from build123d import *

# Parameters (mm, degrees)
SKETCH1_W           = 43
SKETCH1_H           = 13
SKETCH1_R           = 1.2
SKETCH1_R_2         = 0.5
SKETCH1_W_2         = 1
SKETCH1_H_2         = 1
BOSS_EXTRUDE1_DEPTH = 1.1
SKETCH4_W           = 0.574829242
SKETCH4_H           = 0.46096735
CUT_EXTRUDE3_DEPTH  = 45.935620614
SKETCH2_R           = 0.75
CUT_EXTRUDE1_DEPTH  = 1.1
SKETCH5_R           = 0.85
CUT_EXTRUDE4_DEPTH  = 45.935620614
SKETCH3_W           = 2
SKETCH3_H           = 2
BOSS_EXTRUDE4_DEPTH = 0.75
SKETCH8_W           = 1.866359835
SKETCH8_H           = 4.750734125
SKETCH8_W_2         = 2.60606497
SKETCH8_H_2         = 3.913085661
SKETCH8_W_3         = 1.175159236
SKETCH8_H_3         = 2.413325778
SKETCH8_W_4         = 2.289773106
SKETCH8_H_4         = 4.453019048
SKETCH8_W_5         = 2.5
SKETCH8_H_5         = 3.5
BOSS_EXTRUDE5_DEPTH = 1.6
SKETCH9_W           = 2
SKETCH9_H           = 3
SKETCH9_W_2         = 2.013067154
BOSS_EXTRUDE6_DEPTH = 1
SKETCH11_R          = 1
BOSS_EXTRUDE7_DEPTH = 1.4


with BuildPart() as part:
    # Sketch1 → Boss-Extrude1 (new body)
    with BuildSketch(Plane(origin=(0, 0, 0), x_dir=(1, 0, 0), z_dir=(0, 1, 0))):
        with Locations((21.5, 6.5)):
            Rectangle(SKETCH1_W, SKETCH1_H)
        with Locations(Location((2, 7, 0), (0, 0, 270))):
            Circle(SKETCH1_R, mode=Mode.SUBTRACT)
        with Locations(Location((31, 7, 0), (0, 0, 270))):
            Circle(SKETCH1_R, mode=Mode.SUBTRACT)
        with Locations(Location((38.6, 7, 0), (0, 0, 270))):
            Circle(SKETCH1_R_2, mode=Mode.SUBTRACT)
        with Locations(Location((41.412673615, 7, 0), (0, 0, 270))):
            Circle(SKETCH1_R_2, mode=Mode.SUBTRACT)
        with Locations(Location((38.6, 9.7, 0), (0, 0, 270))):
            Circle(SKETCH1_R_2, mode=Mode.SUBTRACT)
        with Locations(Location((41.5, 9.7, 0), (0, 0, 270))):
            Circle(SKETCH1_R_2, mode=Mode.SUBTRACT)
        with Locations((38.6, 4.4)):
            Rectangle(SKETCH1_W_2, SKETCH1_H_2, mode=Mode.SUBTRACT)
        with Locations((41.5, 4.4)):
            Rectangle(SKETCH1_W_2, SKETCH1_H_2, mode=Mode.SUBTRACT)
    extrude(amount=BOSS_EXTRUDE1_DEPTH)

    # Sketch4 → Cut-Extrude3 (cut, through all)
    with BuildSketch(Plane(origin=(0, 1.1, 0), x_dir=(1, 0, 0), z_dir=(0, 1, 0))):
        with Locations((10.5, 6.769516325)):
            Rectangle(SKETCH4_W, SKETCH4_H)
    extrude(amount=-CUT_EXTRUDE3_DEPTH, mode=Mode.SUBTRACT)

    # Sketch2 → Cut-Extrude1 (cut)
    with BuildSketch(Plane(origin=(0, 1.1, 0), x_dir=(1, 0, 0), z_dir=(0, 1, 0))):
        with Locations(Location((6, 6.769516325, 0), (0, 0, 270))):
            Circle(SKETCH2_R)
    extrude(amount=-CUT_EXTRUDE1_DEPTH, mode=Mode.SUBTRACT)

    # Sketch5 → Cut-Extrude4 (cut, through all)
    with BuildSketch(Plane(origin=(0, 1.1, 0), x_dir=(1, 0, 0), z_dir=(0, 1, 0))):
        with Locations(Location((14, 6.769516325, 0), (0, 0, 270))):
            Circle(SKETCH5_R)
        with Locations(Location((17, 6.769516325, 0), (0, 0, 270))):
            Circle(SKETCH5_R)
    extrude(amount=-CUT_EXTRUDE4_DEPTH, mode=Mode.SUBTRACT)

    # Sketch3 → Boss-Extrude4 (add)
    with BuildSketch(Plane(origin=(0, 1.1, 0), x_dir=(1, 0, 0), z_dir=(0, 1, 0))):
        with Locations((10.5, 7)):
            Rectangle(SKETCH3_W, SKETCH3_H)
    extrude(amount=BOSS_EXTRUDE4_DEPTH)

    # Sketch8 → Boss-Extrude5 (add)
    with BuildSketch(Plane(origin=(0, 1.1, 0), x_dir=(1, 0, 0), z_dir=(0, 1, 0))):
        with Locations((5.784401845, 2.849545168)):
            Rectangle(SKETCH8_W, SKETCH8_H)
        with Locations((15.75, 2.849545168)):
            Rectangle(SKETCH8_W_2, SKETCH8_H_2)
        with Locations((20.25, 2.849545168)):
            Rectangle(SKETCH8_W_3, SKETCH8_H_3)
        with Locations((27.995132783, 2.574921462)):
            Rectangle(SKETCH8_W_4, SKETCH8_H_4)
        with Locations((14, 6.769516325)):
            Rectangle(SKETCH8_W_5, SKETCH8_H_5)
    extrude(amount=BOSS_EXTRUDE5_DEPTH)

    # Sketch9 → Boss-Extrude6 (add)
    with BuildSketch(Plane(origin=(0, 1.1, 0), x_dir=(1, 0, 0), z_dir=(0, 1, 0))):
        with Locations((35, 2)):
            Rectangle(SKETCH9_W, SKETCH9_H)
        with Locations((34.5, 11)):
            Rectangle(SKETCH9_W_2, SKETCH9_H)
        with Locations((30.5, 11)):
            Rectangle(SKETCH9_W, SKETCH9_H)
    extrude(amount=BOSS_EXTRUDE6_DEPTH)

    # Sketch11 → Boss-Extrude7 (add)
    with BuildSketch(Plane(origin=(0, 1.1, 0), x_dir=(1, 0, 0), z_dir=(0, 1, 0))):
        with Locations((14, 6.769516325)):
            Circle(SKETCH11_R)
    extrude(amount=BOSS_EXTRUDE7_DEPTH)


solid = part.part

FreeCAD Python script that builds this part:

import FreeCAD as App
import Part
import Sketcher
Q = App.Units.Quantity

doc = App.newDocument("Part")
body = doc.addObject("PartDesign::Body", "Body")

sketch1 = doc.addObject("Sketcher::SketchObject", "Sketch")
body.addObject(sketch1)
sketch1.AttachmentSupport = (doc.XZ_Plane, [""])
sketch1.MapMode = "FlatFace"
sketch1.addGeometry([
    Part.LineSegment(App.Vector(0, -13, 0), App.Vector(0, 0, 0)),
    Part.LineSegment(App.Vector(0, 0, 0), App.Vector(43, 0, 0)),
    Part.LineSegment(App.Vector(43, 0, 0), App.Vector(43, -13, 0)),
    Part.LineSegment(App.Vector(43, -13, 0), App.Vector(0, -13, 0)),
    Part.Circle(App.Vector(2, -7, 0), App.Vector(0, 0, 1), 1.2),
    Part.LineSegment(App.Vector(39.1, -3.9, 0), App.Vector(38.1, -3.9, 0)),
    Part.LineSegment(App.Vector(38.1, -3.9, 0), App.Vector(38.1, -4.9, 0)),
    Part.LineSegment(App.Vector(38.1, -4.9, 0), App.Vector(39.1, -4.9, 0)),
    Part.LineSegment(App.Vector(39.1, -4.9, 0), App.Vector(39.1, -3.9, 0)),
    Part.LineSegment(App.Vector(42, -3.9, 0), App.Vector(41, -3.9, 0)),
    Part.LineSegment(App.Vector(41, -3.9, 0), App.Vector(41, -4.9, 0)),
    Part.LineSegment(App.Vector(41, -4.9, 0), App.Vector(42, -4.9, 0)),
    Part.LineSegment(App.Vector(42, -4.9, 0), App.Vector(42, -3.9, 0)),
    Part.Circle(App.Vector(31, -7, 0), App.Vector(0, 0, 1), 1.2),
    Part.Circle(App.Vector(38.6, -7, 0), App.Vector(0, 0, 1), 0.5),
    Part.Circle(App.Vector(41.4, -7, 0), App.Vector(0, 0, 1), 0.5),
    Part.Circle(App.Vector(38.6, -9.7, 0), App.Vector(0, 0, 1), 0.5),
    Part.Circle(App.Vector(41.5, -9.7, 0), App.Vector(0, 0, 1), 0.5),
], False)
sketch1.addConstraint([
    Sketcher.Constraint("Coincident", 0, 2, 1, 1),
    Sketcher.Constraint("Coincident", 1, 2, 2, 1),
    Sketcher.Constraint("Coincident", 2, 2, 3, 1),
    Sketcher.Constraint("Coincident", 3, 2, 0, 1),
    Sketcher.Constraint("Coincident", 5, 2, 6, 1),
    Sketcher.Constraint("Coincident", 6, 2, 7, 1),
    Sketcher.Constraint("Coincident", 7, 2, 8, 1),
    Sketcher.Constraint("Coincident", 8, 2, 5, 1),
    Sketcher.Constraint("Coincident", 9, 2, 10, 1),
    Sketcher.Constraint("Coincident", 10, 2, 11, 1),
    Sketcher.Constraint("Coincident", 11, 2, 12, 1),
    Sketcher.Constraint("Coincident", 12, 2, 9, 1),
    Sketcher.Constraint("Vertical", 0),
    Sketcher.Constraint("Horizontal", 1),
    Sketcher.Constraint("Vertical", 2),
    Sketcher.Constraint("Horizontal", 3),
    Sketcher.Constraint("Horizontal", 5),
    Sketcher.Constraint("Vertical", 6),
    Sketcher.Constraint("Horizontal", 7),
    Sketcher.Constraint("Vertical", 8),
    Sketcher.Constraint("Horizontal", 9),
    Sketcher.Constraint("Vertical", 10),
    Sketcher.Constraint("Horizontal", 11),
    Sketcher.Constraint("Vertical", 12),
    Sketcher.Constraint("Coincident", 0, 2, -1, 1),
    Sketcher.Constraint("Equal", 4, 13),
    Sketcher.Constraint("Equal", 14, 15),
    Sketcher.Constraint("Equal", 15, 16),
    Sketcher.Constraint("Equal", 16, 17),
    Sketcher.Constraint("Horizontal", 4, 3, 13, 3),
    Sketcher.Constraint("Horizontal", 13, 3, 14, 3),
    Sketcher.Constraint("Horizontal", 14, 3, 15, 3),
    Sketcher.Constraint("Horizontal", 16, 3, 17, 3),
    Sketcher.Constraint("Horizontal", 8, 2, 9, 2),
    Sketcher.Constraint("Horizontal", 7, 2, 10, 2),
    Sketcher.Constraint("Vertical", 14, 3, 16, 3),
    Sketcher.Constraint("Equal", 7, 9),
    Sketcher.Constraint("Equal", 11, 6),
    Sketcher.Constraint("Diameter", 14, Q("1 mm")),
    Sketcher.Constraint("Diameter", 4, Q("2.4 mm")),
    Sketcher.Constraint("DistanceX", 1, 1, 1, 2, Q("43 mm")),
    Sketcher.Constraint("DistanceX", 5, 2, 5, 1, Q("1 mm")),
    Sketcher.Constraint("DistanceY", 0, 1, 0, 2, Q("13 mm")),
    Sketcher.Constraint("DistanceX", -1, 1, 4, 3, Q("2 mm")),
    Sketcher.Constraint("DistanceY", 4, 3, -1, 1, Q("7 mm")),
    Sketcher.Constraint("DistanceX", -1, 1, 13, 3, Q("31 mm")),
    Sketcher.Constraint("DistanceX", -1, 1, 9, 2, Q("41 mm")),
    Sketcher.Constraint("DistanceX", -1, 1, 14, 3, Q("38.6 mm")),
    Sketcher.Constraint("DistanceY", 16, 3, -1, 1, Q("9.7 mm")),
    Sketcher.Constraint("DistanceX", -1, 1, 17, 3, Q("41.5 mm")),
    Sketcher.Constraint("DistanceX", -1, 1, 5, 2, Q("38.1 mm")),
    Sketcher.Constraint("DistanceY", 5, 2, -1, 1, Q("3.9 mm")),
    Sketcher.Constraint("DistanceX", -1, 1, 15, 3, Q("41.412674 mm")),
])
pad1 = doc.addObject("PartDesign::Pad", "Pad")
body.addObject(pad1)
pad1.Profile = sketch1
pad1.Length = 1.1
pad1.Reversed = True

sketch2 = doc.addObject("Sketcher::SketchObject", "Sketch001")
body.addObject(sketch2)
sketch2.AttachmentSupport = (doc.XZ_Plane, [""])
sketch2.MapMode = "FlatFace"
sketch2.AttachmentOffset = App.Placement(App.Vector(0, 0, -1.1), App.Rotation())
sketch2.addGeometry([
    Part.LineSegment(App.Vector(10.21, -7, 0), App.Vector(10.21, -6.54, 0)),
    Part.LineSegment(App.Vector(10.21, -6.54, 0), App.Vector(10.79, -6.54, 0)),
    Part.LineSegment(App.Vector(10.79, -6.54, 0), App.Vector(10.79, -7, 0)),
    Part.LineSegment(App.Vector(10.79, -7, 0), App.Vector(10.21, -7, 0)),
], False)
sketch2.addConstraint([
    Sketcher.Constraint("Coincident", 0, 2, 1, 1),
    Sketcher.Constraint("Coincident", 1, 2, 2, 1),
    Sketcher.Constraint("Coincident", 2, 2, 3, 1),
    Sketcher.Constraint("Coincident", 3, 2, 0, 1),
    Sketcher.Constraint("Vertical", 0),
    Sketcher.Constraint("Horizontal", 1),
    Sketcher.Constraint("Vertical", 2),
    Sketcher.Constraint("Horizontal", 3),
    Sketcher.Constraint("DistanceY", 2, 2, -1, 1, Q("7 mm")),
    Sketcher.Constraint("DistanceX", 1, 1, 1, 2, Q("0.574829 mm")),
    Sketcher.Constraint("DistanceY", 0, 1, 0, 2, Q("0.460967 mm")),
    Sketcher.Constraint("DistanceX", -1, 1, 0, 2, Q("10.212585 mm")),
])
pocket1 = doc.addObject("PartDesign::Pocket", "Pocket")
body.addObject(pocket1)
pocket1.Profile = sketch2
pocket1.Type = "ThroughAll"
pocket1.Reversed = True

sketch3 = doc.addObject("Sketcher::SketchObject", "Sketch002")
body.addObject(sketch3)
sketch3.AttachmentSupport = (doc.XZ_Plane, [""])
sketch3.MapMode = "FlatFace"
sketch3.AttachmentOffset = App.Placement(App.Vector(0, 0, -1.1), App.Rotation())
sketch3.addGeometry(Part.Circle(App.Vector(6, -6.8, 0), App.Vector(0, 0, 1), 0.8), False)
sketch3.addConstraint([
    Sketcher.Constraint("Diameter", 0, Q("1.5 mm")),
    Sketcher.Constraint("DistanceX", -1, 1, 0, 3, Q("6 mm")),
    Sketcher.Constraint("DistanceY", 0, 3, -1, 1, Q("6.769516 mm")),
])
pocket2 = doc.addObject("PartDesign::Pocket", "Pocket001")
body.addObject(pocket2)
pocket2.Profile = sketch3
pocket2.Length = 1.1
pocket2.Reversed = True

sketch4 = doc.addObject("Sketcher::SketchObject", "Sketch003")
body.addObject(sketch4)
sketch4.AttachmentSupport = (doc.XZ_Plane, [""])
sketch4.MapMode = "FlatFace"
sketch4.AttachmentOffset = App.Placement(App.Vector(0, 0, -1.1), App.Rotation())
sketch4.addGeometry([
    Part.Circle(App.Vector(14, -6.8, 0), App.Vector(0, 0, 1), 0.8),
    Part.Circle(App.Vector(17, -6.8, 0), App.Vector(0, 0, 1), 0.8),
], False)
sketch4.addConstraint([
    Sketcher.Constraint("Equal", 0, 1),
    Sketcher.Constraint("Horizontal", 0, 3, 1, 3),
    Sketcher.Constraint("Diameter", 0, Q("1.7 mm")),
    Sketcher.Constraint("DistanceX", -1, 1, 0, 3, Q("14 mm")),
    Sketcher.Constraint("DistanceX", -1, 1, 1, 3, Q("17 mm")),
    Sketcher.Constraint("DistanceY", 0, 3, -1, 1, Q("6.769516 mm")),
])
pocket3 = doc.addObject("PartDesign::Pocket", "Pocket002")
body.addObject(pocket3)
pocket3.Profile = sketch4
pocket3.Type = "ThroughAll"
pocket3.Reversed = True

sketch5 = doc.addObject("Sketcher::SketchObject", "Sketch004")
body.addObject(sketch5)
sketch5.AttachmentSupport = (doc.XZ_Plane, [""])
sketch5.MapMode = "FlatFace"
sketch5.AttachmentOffset = App.Placement(App.Vector(0, 0, -1.1), App.Rotation())
sketch5.addGeometry([
    Part.LineSegment(App.Vector(9.5, -8, 0), App.Vector(9.5, -6, 0)),
    Part.LineSegment(App.Vector(9.5, -6, 0), App.Vector(11.5, -6, 0)),
    Part.LineSegment(App.Vector(11.5, -6, 0), App.Vector(11.5, -8, 0)),
    Part.LineSegment(App.Vector(11.5, -8, 0), App.Vector(9.5, -8, 0)),
], False)
sketch5.addConstraint([
    Sketcher.Constraint("Coincident", 0, 2, 1, 1),
    Sketcher.Constraint("Coincident", 1, 2, 2, 1),
    Sketcher.Constraint("Coincident", 2, 2, 3, 1),
    Sketcher.Constraint("Coincident", 3, 2, 0, 1),
    Sketcher.Constraint("Vertical", 0),
    Sketcher.Constraint("Horizontal", 1),
    Sketcher.Constraint("Vertical", 2),
    Sketcher.Constraint("Horizontal", 3),
    Sketcher.Constraint("Equal", 3, 0),
    Sketcher.Constraint("DistanceX", 1, 1, 1, 2, Q("2 mm")),
    Sketcher.Constraint("DistanceY", 0, 2, -1, 1, Q("6 mm")),
    Sketcher.Constraint("DistanceX", -1, 1, 0, 2, Q("9.5 mm")),
])
pad2 = doc.addObject("PartDesign::Pad", "Pad001")
body.addObject(pad2)
pad2.Profile = sketch5
pad2.Length = 0.75
pad2.Reversed = True

sketch6 = doc.addObject("Sketcher::SketchObject", "Sketch005")
body.addObject(sketch6)
sketch6.AttachmentSupport = (doc.XZ_Plane, [""])
sketch6.MapMode = "FlatFace"
sketch6.AttachmentOffset = App.Placement(App.Vector(0, 0, -1.1), App.Rotation())
sketch6.addGeometry([
    Part.LineSegment(App.Vector(4.9, -5.2, 0), App.Vector(4.9, -0.5, 0)),
    Part.LineSegment(App.Vector(4.9, -0.5, 0), App.Vector(6.7, -0.5, 0)),
    Part.LineSegment(App.Vector(6.7, -0.5, 0), App.Vector(6.7, -5.2, 0)),
    Part.LineSegment(App.Vector(6.7, -5.2, 0), App.Vector(4.9, -5.2, 0)),
    Part.LineSegment(App.Vector(14.4, -4.8, 0), App.Vector(14.4, -0.9, 0)),
    Part.LineSegment(App.Vector(14.4, -0.9, 0), App.Vector(17.1, -0.9, 0)),
    Part.LineSegment(App.Vector(17.1, -0.9, 0), App.Vector(17.1, -4.8, 0)),
    Part.LineSegment(App.Vector(17.1, -4.8, 0), App.Vector(14.4, -4.8, 0)),
    Part.LineSegment(App.Vector(19.7, -4.1, 0), App.Vector(19.7, -1.6, 0)),
    Part.LineSegment(App.Vector(19.7, -1.6, 0), App.Vector(20.8, -1.6, 0)),
    Part.LineSegment(App.Vector(20.8, -1.6, 0), App.Vector(20.8, -4.1, 0)),
    Part.LineSegment(App.Vector(20.8, -4.1, 0), App.Vector(19.7, -4.1, 0)),
    Part.LineSegment(App.Vector(26.9, -4.8, 0), App.Vector(26.9, -0.3, 0)),
    Part.LineSegment(App.Vector(26.9, -0.3, 0), App.Vector(29.1, -0.3, 0)),
    Part.LineSegment(App.Vector(29.1, -0.3, 0), App.Vector(29.1, -4.8, 0)),
    Part.LineSegment(App.Vector(29.1, -4.8, 0), App.Vector(26.9, -4.8, 0)),
    Part.LineSegment(App.Vector(12.8, -8.5, 0), App.Vector(12.8, -5, 0)),
    Part.LineSegment(App.Vector(12.8, -5, 0), App.Vector(15.2, -5, 0)),
    Part.LineSegment(App.Vector(15.2, -5, 0), App.Vector(15.2, -8.5, 0)),
    Part.LineSegment(App.Vector(15.2, -8.5, 0), App.Vector(12.8, -8.5, 0)),
], False)
sketch6.addConstraint([
    Sketcher.Constraint("Coincident", 0, 2, 1, 1),
    Sketcher.Constraint("Coincident", 1, 2, 2, 1),
    Sketcher.Constraint("Coincident", 2, 2, 3, 1),
    Sketcher.Constraint("Coincident", 3, 2, 0, 1),
    Sketcher.Constraint("Coincident", 4, 2, 5, 1),
    Sketcher.Constraint("Coincident", 5, 2, 6, 1),
    Sketcher.Constraint("Coincident", 6, 2, 7, 1),
    Sketcher.Constraint("Coincident", 7, 2, 4, 1),
    Sketcher.Constraint("Coincident", 8, 2, 9, 1),
    Sketcher.Constraint("Coincident", 9, 2, 10, 1),
    Sketcher.Constraint("Coincident", 10, 2, 11, 1),
    Sketcher.Constraint("Coincident", 11, 2, 8, 1),
    Sketcher.Constraint("Coincident", 12, 2, 13, 1),
    Sketcher.Constraint("Coincident", 13, 2, 14, 1),
    Sketcher.Constraint("Coincident", 14, 2, 15, 1),
    Sketcher.Constraint("Coincident", 15, 2, 12, 1),
    Sketcher.Constraint("Coincident", 16, 2, 17, 1),
    Sketcher.Constraint("Coincident", 17, 2, 18, 1),
    Sketcher.Constraint("Coincident", 18, 2, 19, 1),
    Sketcher.Constraint("Coincident", 19, 2, 16, 1),
    Sketcher.Constraint("Vertical", 0),
    Sketcher.Constraint("Horizontal", 1),
    Sketcher.Constraint("Vertical", 2),
    Sketcher.Constraint("Horizontal", 3),
    Sketcher.Constraint("Vertical", 4),
    Sketcher.Constraint("Horizontal", 5),
    Sketcher.Constraint("Vertical", 6),
    Sketcher.Constraint("Horizontal", 7),
    Sketcher.Constraint("Vertical", 8),
    Sketcher.Constraint("Horizontal", 9),
    Sketcher.Constraint("Vertical", 10),
    Sketcher.Constraint("Horizontal", 11),
    Sketcher.Constraint("Vertical", 12),
    Sketcher.Constraint("Horizontal", 13),
    Sketcher.Constraint("Vertical", 14),
    Sketcher.Constraint("Horizontal", 15),
    Sketcher.Constraint("Vertical", 16),
    Sketcher.Constraint("Horizontal", 17),
    Sketcher.Constraint("Vertical", 18),
    Sketcher.Constraint("Horizontal", 19),
    Sketcher.Constraint("DistanceX", 17, 1, 17, 2, Q("2.5 mm")),
    Sketcher.Constraint("DistanceY", 16, 1, 16, 2, Q("3.5 mm")),
    Sketcher.Constraint("DistanceX", -1, 1, 16, 2, Q("12.75 mm")),
    Sketcher.Constraint("DistanceX", 1, 1, 1, 2, Q("1.86636 mm")),
    Sketcher.Constraint("DistanceX", 9, 1, 9, 2, Q("1.175159 mm")),
    Sketcher.Constraint("DistanceY", 12, 1, 12, 2, Q("4.453019 mm")),
    Sketcher.Constraint("DistanceX", 8, 2, 13, 2, Q("9.477599 mm")),
    Sketcher.Constraint("DistanceX", 5, 1, 5, 2, Q("2.606065 mm")),
    Sketcher.Constraint("DistanceX", 13, 1, 13, 2, Q("2.289773 mm")),
    Sketcher.Constraint("DistanceY", 0, 1, 0, 2, Q("4.750734 mm")),
    Sketcher.Constraint("DistanceY", 4, 1, 4, 2, Q("3.913086 mm")),
    Sketcher.Constraint("DistanceY", 8, 1, 8, 2, Q("2.413326 mm")),
    Sketcher.Constraint("DistanceX", -1, 1, 0, 2, Q("4.851222 mm")),
    Sketcher.Constraint("DistanceY", 0, 2, -1, 1, Q("0.474178 mm")),
    Sketcher.Constraint("DistanceX", -1, 1, 8, 2, Q("19.66242 mm")),
    Sketcher.Constraint("DistanceY", 10, 2, -1, 1, Q("4.056208 mm")),
    Sketcher.Constraint("DistanceY", 12, 2, -1, 1, Q("0.348412 mm")),
    Sketcher.Constraint("DistanceY", 2, 2, 4, 2, Q("4.33191 mm")),
    Sketcher.Constraint("DistanceX", 1, 2, 5, 2, Q("10.335451 mm")),
    Sketcher.Constraint("DistanceY", 16, 2, 7, 2, Q("0.213428 mm")),
])
pad3 = doc.addObject("PartDesign::Pad", "Pad002")
body.addObject(pad3)
pad3.Profile = sketch6
pad3.Length = 1.6
pad3.Reversed = True

sketch7 = doc.addObject("Sketcher::SketchObject", "Sketch006")
body.addObject(sketch7)
sketch7.AttachmentSupport = (doc.XZ_Plane, [""])
sketch7.MapMode = "FlatFace"
sketch7.AttachmentOffset = App.Placement(App.Vector(0, 0, -1.1), App.Rotation())
sketch7.addGeometry([
    Part.LineSegment(App.Vector(34, -3.5, 0), App.Vector(34, -0.5, 0)),
    Part.LineSegment(App.Vector(34, -0.5, 0), App.Vector(36, -0.5, 0)),
    Part.LineSegment(App.Vector(36, -0.5, 0), App.Vector(36, -3.5, 0)),
    Part.LineSegment(App.Vector(36, -3.5, 0), App.Vector(34, -3.5, 0)),
    Part.LineSegment(App.Vector(33.5, -12.5, 0), App.Vector(33.5, -9.5, 0)),
    Part.LineSegment(App.Vector(33.5, -9.5, 0), App.Vector(35.5, -9.5, 0)),
    Part.LineSegment(App.Vector(35.5, -9.5, 0), App.Vector(35.5, -12.5, 0)),
    Part.LineSegment(App.Vector(35.5, -12.5, 0), App.Vector(33.5, -12.5, 0)),
    Part.LineSegment(App.Vector(29.5, -12.5, 0), App.Vector(29.5, -9.5, 0)),
    Part.LineSegment(App.Vector(29.5, -9.5, 0), App.Vector(31.5, -9.5, 0)),
    Part.LineSegment(App.Vector(31.5, -9.5, 0), App.Vector(31.5, -12.5, 0)),
    Part.LineSegment(App.Vector(31.5, -12.5, 0), App.Vector(29.5, -12.5, 0)),
], False)
sketch7.addConstraint([
    Sketcher.Constraint("Coincident", 0, 2, 1, 1),
    Sketcher.Constraint("Coincident", 1, 2, 2, 1),
    Sketcher.Constraint("Coincident", 2, 2, 3, 1),
    Sketcher.Constraint("Coincident", 3, 2, 0, 1),
    Sketcher.Constraint("Coincident", 4, 2, 5, 1),
    Sketcher.Constraint("Coincident", 5, 2, 6, 1),
    Sketcher.Constraint("Coincident", 6, 2, 7, 1),
    Sketcher.Constraint("Coincident", 7, 2, 4, 1),
    Sketcher.Constraint("Coincident", 8, 2, 9, 1),
    Sketcher.Constraint("Coincident", 9, 2, 10, 1),
    Sketcher.Constraint("Coincident", 10, 2, 11, 1),
    Sketcher.Constraint("Coincident", 11, 2, 8, 1),
    Sketcher.Constraint("Vertical", 0),
    Sketcher.Constraint("Horizontal", 1),
    Sketcher.Constraint("Vertical", 2),
    Sketcher.Constraint("Horizontal", 3),
    Sketcher.Constraint("Vertical", 4),
    Sketcher.Constraint("Horizontal", 5),
    Sketcher.Constraint("Vertical", 6),
    Sketcher.Constraint("Horizontal", 7),
    Sketcher.Constraint("Vertical", 8),
    Sketcher.Constraint("Horizontal", 9),
    Sketcher.Constraint("Vertical", 10),
    Sketcher.Constraint("Horizontal", 11),
    Sketcher.Constraint("Horizontal", 5, 2, 8, 2),
    Sketcher.Constraint("Horizontal", 7, 2, 10, 2),
    Sketcher.Constraint("Equal", 3, 9),
    Sketcher.Constraint("Equal", 2, 4),
    Sketcher.Constraint("DistanceX", 1, 1, 1, 2, Q("2 mm")),
    Sketcher.Constraint("DistanceY", 0, 1, 0, 2, Q("3 mm")),
    Sketcher.Constraint("DistanceX", -1, 1, 0, 2, Q("34 mm")),
    Sketcher.Constraint("DistanceY", 4, 2, 3, 2, Q("6 mm")),
    Sketcher.Constraint("DistanceY", 0, 2, -1, 1, Q("0.5 mm")),
    Sketcher.Constraint("DistanceX", -1, 1, 8, 2, Q("29.5 mm")),
    Sketcher.Constraint("DistanceX", 5, 1, 5, 2, Q("2.013067 mm")),
    Sketcher.Constraint("DistanceX", -1, 1, 4, 2, Q("33.493466 mm")),
])
pad4 = doc.addObject("PartDesign::Pad", "Pad003")
body.addObject(pad4)
pad4.Profile = sketch7
pad4.Length = 1
pad4.Reversed = True

sketch8 = doc.addObject("Sketcher::SketchObject", "Sketch007")
body.addObject(sketch8)
sketch8.AttachmentSupport = (doc.XZ_Plane, [""])
sketch8.MapMode = "FlatFace"
sketch8.AttachmentOffset = App.Placement(App.Vector(0, 0, -1.1), App.Rotation())
sketch8.addGeometry(Part.Circle(App.Vector(14, -6.8, 0), App.Vector(0, 0, 1), 1), False)
sketch8.addConstraint([
    Sketcher.Constraint("Diameter", 0, Q("2 mm")),
    Sketcher.Constraint("DistanceX", -1, 1, 0, 3, Q("14 mm")),
    Sketcher.Constraint("DistanceY", 0, 3, -1, 1, Q("6.769516 mm")),
])
pad5 = doc.addObject("PartDesign::Pad", "Pad004")
body.addObject(pad5)
pad5.Profile = sketch8
pad5.Length = 1.4
pad5.Reversed = True

doc.recompute()
